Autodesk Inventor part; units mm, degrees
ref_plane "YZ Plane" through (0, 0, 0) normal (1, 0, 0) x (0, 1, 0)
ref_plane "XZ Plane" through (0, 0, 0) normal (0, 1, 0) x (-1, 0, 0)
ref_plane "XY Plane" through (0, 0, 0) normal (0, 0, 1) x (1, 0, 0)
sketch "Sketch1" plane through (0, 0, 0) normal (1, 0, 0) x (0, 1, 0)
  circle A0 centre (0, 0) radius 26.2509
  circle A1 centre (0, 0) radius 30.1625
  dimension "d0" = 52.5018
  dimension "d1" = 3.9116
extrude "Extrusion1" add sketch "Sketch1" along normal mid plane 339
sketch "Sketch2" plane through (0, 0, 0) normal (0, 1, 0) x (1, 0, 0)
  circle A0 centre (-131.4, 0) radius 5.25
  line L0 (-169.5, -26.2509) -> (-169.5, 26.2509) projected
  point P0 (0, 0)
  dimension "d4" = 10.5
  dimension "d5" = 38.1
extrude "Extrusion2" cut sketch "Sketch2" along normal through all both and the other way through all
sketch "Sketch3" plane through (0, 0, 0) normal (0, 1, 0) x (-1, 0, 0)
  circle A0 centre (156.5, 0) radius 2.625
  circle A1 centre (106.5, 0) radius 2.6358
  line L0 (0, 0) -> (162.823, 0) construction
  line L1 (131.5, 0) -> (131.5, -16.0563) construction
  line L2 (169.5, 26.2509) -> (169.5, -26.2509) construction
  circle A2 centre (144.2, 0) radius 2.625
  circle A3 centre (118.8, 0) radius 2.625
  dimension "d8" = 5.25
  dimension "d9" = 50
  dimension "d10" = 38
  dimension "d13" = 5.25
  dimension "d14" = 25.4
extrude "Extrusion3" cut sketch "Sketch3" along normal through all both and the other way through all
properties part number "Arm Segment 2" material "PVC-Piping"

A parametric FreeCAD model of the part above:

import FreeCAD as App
import Part
import Sketcher
from FreeCAD import Vector

doc = App.newDocument("Part")
body = doc.addObject("PartDesign::Body", "Body")

sketch1 = body.newObject("Sketcher::SketchObject", "Sketch")
sketch1.AttachmentSupport = (doc.getObject("YZ_Plane"), [""])
sketch1.MapMode = "FlatFace"
sketch1.addGeometry([
    Part.Circle(Vector(0, 0, 0), Vector(0, 0, 1), 30),
    Part.Circle(Vector(0, 0, 0), Vector(0, 0, 1), 26),
], False)
sketch1.addConstraint([
    Sketcher.Constraint("Coincident", 0, 3, -1, 1),
    Sketcher.Constraint("Coincident", 1, 3, -1, 1),
    Sketcher.Constraint("Diameter", 1, 52.5018),
    Sketcher.Constraint("Diameter", 0, 60.325),
])
pad1 = body.newObject("PartDesign::Pad", "Pad")
pad1.Profile = sketch1
pad1.Length = 339
pad1.Midplane = True

sketch2 = body.newObject("Sketcher::SketchObject", "Sketch001")
sketch2.AttachmentSupport = (doc.getObject("XZ_Plane"), [""])
sketch2.MapMode = "FlatFace"
sketch2.addGeometry(Part.Circle(Vector(-131, 0, 0), Vector(0, 0, 1), 5), False)
sketch2.addConstraint([
    Sketcher.Constraint("PointOnObject", 0, 3, -1),
    Sketcher.Constraint("Diameter", 0, 10.5),
    Sketcher.Constraint("DistanceX", 0, 3, -1, 1, 131.4),
])
pocket1 = body.newObject("PartDesign::Pocket", "Pocket")
pocket1.Profile = sketch2
pocket1.Type = "ThroughAll"
pocket1.Midplane = True

sketch3 = body.newObject("Sketcher::SketchObject", "Sketch002")
sketch3.AttachmentSupport = (doc.getObject("XZ_Plane"), [""])
sketch3.MapMode = "FlatFace"
sketch3.addGeometry([
    Part.Circle(Vector(-156.5, 0, 0), Vector(0, 0, 1), 2.6),
    Part.Circle(Vector(-106.5, 0, 0), Vector(0, 0, 1), 2.6),
    Part.Circle(Vector(-144.2, 0, 0), Vector(0, 0, 1), 2.6),
    Part.Circle(Vector(-118.8, 0, 0), Vector(0, 0, 1), 2.6),
], False)
sketch3.addConstraint([
    Sketcher.Constraint("Equal", 0, 2),
    Sketcher.Constraint("Equal", 2, 3),
    Sketcher.Constraint("PointOnObject", 0, 3, -1),
    Sketcher.Constraint("PointOnObject", 1, 3, -1),
    Sketcher.Constraint("PointOnObject", 2, 3, -1),
    Sketcher.Constraint("PointOnObject", 3, 3, -1),
    Sketcher.Constraint("Diameter", 0, 5.25),
    Sketcher.Constraint("DistanceX", 0, 3, 1, 3, 50.0),
    Sketcher.Constraint("DistanceX", 2, 3, 3, 3, 25.4),
    Sketcher.Constraint("Diameter", 1, 5.2716),
    Sketcher.Constraint("DistanceX", 0, 3, -1, 1, 156.5),
    Sketcher.Constraint("DistanceX", 2, 3, -1, 1, 144.2),
])
pocket2 = body.newObject("PartDesign::Pocket", "Pocket001")
pocket2.Profile = sketch3
pocket2.Type = "ThroughAll"
pocket2.Midplane = True

doc.recompute()
